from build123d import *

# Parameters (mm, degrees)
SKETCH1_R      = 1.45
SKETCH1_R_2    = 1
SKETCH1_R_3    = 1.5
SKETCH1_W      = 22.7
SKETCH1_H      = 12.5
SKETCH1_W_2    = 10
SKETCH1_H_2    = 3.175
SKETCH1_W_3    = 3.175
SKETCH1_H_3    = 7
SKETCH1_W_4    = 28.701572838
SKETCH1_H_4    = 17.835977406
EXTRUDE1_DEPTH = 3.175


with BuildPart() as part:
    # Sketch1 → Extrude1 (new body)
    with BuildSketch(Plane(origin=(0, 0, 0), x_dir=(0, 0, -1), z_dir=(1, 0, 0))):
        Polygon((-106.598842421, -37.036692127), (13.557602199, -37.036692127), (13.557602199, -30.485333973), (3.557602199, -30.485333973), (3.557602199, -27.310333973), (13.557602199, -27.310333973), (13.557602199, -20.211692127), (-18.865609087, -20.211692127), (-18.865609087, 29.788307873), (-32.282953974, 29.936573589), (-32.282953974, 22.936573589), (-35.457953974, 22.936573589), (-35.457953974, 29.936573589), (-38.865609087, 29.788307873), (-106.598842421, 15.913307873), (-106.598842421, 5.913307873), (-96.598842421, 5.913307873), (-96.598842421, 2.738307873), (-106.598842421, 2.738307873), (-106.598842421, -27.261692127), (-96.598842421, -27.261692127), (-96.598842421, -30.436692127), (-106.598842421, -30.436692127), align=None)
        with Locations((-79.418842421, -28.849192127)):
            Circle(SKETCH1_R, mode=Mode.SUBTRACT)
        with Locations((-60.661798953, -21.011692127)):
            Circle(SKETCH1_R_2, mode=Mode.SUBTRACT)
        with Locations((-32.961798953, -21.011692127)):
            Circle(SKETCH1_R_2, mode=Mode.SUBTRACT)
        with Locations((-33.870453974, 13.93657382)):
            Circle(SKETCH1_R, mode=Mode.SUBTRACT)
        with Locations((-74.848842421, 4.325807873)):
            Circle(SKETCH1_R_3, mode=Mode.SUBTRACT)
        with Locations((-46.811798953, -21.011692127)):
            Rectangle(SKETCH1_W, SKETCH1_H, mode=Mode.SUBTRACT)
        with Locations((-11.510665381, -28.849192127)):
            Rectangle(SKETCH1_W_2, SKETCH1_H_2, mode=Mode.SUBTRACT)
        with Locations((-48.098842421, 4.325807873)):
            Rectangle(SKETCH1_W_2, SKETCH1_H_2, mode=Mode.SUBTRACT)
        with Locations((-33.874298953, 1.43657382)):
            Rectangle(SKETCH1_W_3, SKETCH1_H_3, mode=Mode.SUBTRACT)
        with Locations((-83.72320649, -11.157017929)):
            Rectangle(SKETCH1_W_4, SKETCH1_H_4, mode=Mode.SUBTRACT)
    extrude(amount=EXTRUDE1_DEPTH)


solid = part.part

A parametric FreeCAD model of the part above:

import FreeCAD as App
import Part
import Sketcher
Q = App.Units.Quantity


def add_polygon(sketch, points):
    """Adds a closed chain of lines whose ends are joined by coincident constraints."""
    first, n = sketch.GeometryCount, len(points)
    for a, b in zip(points, points[1:] + points[:1]):
        sketch.addGeometry(Part.LineSegment(App.Vector(*a, 0), App.Vector(*b, 0)), False)
    for i in range(n):
        sketch.addConstraint(Sketcher.Constraint("Coincident", first + i, 2, first + (i + 1) % n, 1))

doc = App.newDocument("Part")
params = doc.addObject("Spreadsheet::Sheet", "Params")
for row, (alias, value) in enumerate([
    ("sketch1_diameter", "2 mm"),
    ("sketch1_diameter2", "3 mm"),
    ("sketch1_diameter3", "2.9 mm"),
    ("sketch1_width", "50 mm"),
    ("sketch1_width2", "7 mm"),
    ("pad1_length", "3.175 mm"),
], start=1):
    params.set(f"A{row}", alias)
    params.set(f"B{row}", "=" + value)
    params.setAlias(f"B{row}", alias)

body = doc.addObject("PartDesign::Body", "Body")

# Sketch on YZ plane
sketch1 = doc.addObject("Sketcher::SketchObject", "Sketch")
body.addObject(sketch1)
sketch1.AttachmentSupport = (doc.YZ_Plane, [""])
sketch1.MapMode = "FlatFace"
add_polygon(sketch1, [(-37, 106.6), (-37, -13.6), (-30.5, -13.6), (-30.5, -3.6), (-27.3, -3.6), (-27.3, -13.6), (-20.2, -13.6), (-20.2, 18.9), (29.8, 18.9), (29.9, 32.3), (22.9, 32.3), (22.9, 35.5), (29.9, 35.5), (29.8, 38.9), (15.9, 106.6), (5.9, 106.6), (5.9, 96.6), (2.7, 96.6), (2.7, 106.6), (-27.3, 106.6), (-27.3, 96.6), (-30.4, 96.6), (-30.4, 106.6)])  # lines 0-22
sketch1.addGeometry(Part.Circle(App.Vector(-28.8, 79.4, 0), App.Vector(0, 0, 1), 1.4), False)  # 23
sketch1.addGeometry(Part.Circle(App.Vector(-21, 60.7, 0), App.Vector(0, 0, 1), 1), False)  # 24
add_polygon(sketch1, [(-20.1, 69.4), (-20.1, 98.1), (-2.2, 98.1), (-2.2, 69.4)])  # lines 25-28
add_polygon(sketch1, [(-27.3, 35.5), (-27.3, 58.2), (-14.8, 58.2), (-14.8, 35.5)])  # lines 29-32
sketch1.addGeometry(Part.Circle(App.Vector(-21, 33, 0), App.Vector(0, 0, 1), 1), False)  # 33
add_polygon(sketch1, [(-30.4, 6.5), (-30.4, 16.5), (-27.3, 16.5), (-27.3, 6.5)])  # lines 34-37
sketch1.addGeometry(Part.Circle(App.Vector(4.3, 74.8, 0), App.Vector(0, 0, 1), 1.5), False)  # 38
add_polygon(sketch1, [(-2.1, 32.3), (-2.1, 35.5), (4.9, 35.5), (4.9, 32.3)])  # lines 39-42
add_polygon(sketch1, [(2.7, 43.1), (2.7, 53.1), (5.9, 53.1), (5.9, 43.1)])  # lines 43-46
sketch1.addGeometry(Part.Circle(App.Vector(13.9, 33.9, 0), App.Vector(0, 0, 1), 1.4), False)  # 47
sketch1.addConstraint(Sketcher.Constraint("Vertical", 0))
sketch1.addConstraint(Sketcher.Constraint("Horizontal", 1))
sketch1.addConstraint(Sketcher.Constraint("Vertical", 2))
sketch1.addConstraint(Sketcher.Constraint("Horizontal", 3))
sketch1.addConstraint(Sketcher.Constraint("Vertical", 4))
sketch1.addConstraint(Sketcher.Constraint("Horizontal", 5))
sketch1.addConstraint(Sketcher.Constraint("Vertical", 6))
sketch1.addConstraint(Sketcher.Constraint("Horizontal", 7))
sketch1.addConstraint(Sketcher.Constraint("Horizontal", 9))
sketch1.addConstraint(Sketcher.Constraint("Vertical", 10))
sketch1.addConstraint(Sketcher.Constraint("Horizontal", 11))
sketch1.addConstraint(Sketcher.Constraint("Horizontal", 14))
sketch1.addConstraint(Sketcher.Constraint("Vertical", 15))
sketch1.addConstraint(Sketcher.Constraint("Horizontal", 16))
sketch1.addConstraint(Sketcher.Constraint("Vertical", 17))
sketch1.addConstraint(Sketcher.Constraint("Horizontal", 18))
sketch1.addConstraint(Sketcher.Constraint("Vertical", 19))
sketch1.addConstraint(Sketcher.Constraint("Horizontal", 20))
sketch1.addConstraint(Sketcher.Constraint("Vertical", 21))
sketch1.addConstraint(Sketcher.Constraint("Horizontal", 22))
sketch1.addConstraint(Sketcher.Constraint("Vertical", 25))
sketch1.addConstraint(Sketcher.Constraint("Horizontal", 26))
sketch1.addConstraint(Sketcher.Constraint("Vertical", 27))
sketch1.addConstraint(Sketcher.Constraint("Horizontal", 28))
sketch1.addConstraint(Sketcher.Constraint("Vertical", 29))
sketch1.addConstraint(Sketcher.Constraint("Horizontal", 30))
sketch1.addConstraint(Sketcher.Constraint("Vertical", 31))
sketch1.addConstraint(Sketcher.Constraint("Horizontal", 32))
sketch1.addConstraint(Sketcher.Constraint("Vertical", 34))
sketch1.addConstraint(Sketcher.Constraint("Horizontal", 35))
sketch1.addConstraint(Sketcher.Constraint("Vertical", 36))
sketch1.addConstraint(Sketcher.Constraint("Horizontal", 37))
sketch1.addConstraint(Sketcher.Constraint("Vertical", 39))
sketch1.addConstraint(Sketcher.Constraint("Horizontal", 40))
sketch1.addConstraint(Sketcher.Constraint("Vertical", 41))
sketch1.addConstraint(Sketcher.Constraint("Horizontal", 42))
sketch1.addConstraint(Sketcher.Constraint("Vertical", 43))
sketch1.addConstraint(Sketcher.Constraint("Horizontal", 44))
sketch1.addConstraint(Sketcher.Constraint("Vertical", 45))
sketch1.addConstraint(Sketcher.Constraint("Horizontal", 46))
sketch1.addConstraint(Sketcher.Constraint("Equal", 24, 33))
sketch1.addConstraint(Sketcher.Constraint("Equal", 23, 47))
sketch1.addConstraint(Sketcher.Constraint("Horizontal", 1, 2, 4, 2))
sketch1.addConstraint(Sketcher.Constraint("Horizontal", 14, 2, 17, 2))
sketch1.addConstraint(Sketcher.Constraint("Horizontal", 16, 2, 19, 2))
sketch1.addConstraint(Sketcher.Constraint("Horizontal", 18, 2, 21, 2))
sketch1.addConstraint(Sketcher.Constraint("Horizontal", 32, 2, 39, 2))
sketch1.addConstraint(Sketcher.Constraint("Vertical", 24, 3, 33, 3))
sketch1.addConstraint(Sketcher.Constraint("Vertical", 8, 2, 11, 2))
sketch1.addConstraint(Sketcher.Constraint("Vertical", 7, 2, 12, 2))
sketch1.addConstraint(Sketcher.Constraint("Vertical", 19, 2, 29, 2))
sketch1.addConstraint(Sketcher.Constraint("Vertical", 21, 2, 34, 2))
sketch1.addConstraint(Sketcher.Constraint("Vertical", 32, 2, 35, 2))
sketch1.addConstraint(Sketcher.Constraint("Vertical", 17, 2, 43, 2))
sketch1.addConstraint(Sketcher.Constraint("Vertical", 15, 2, 44, 2))
sketch1.addConstraint(Sketcher.Constraint("Equal", 3, 16))
sketch1.addConstraint(Sketcher.Constraint("Equal", 16, 20))
sketch1.addConstraint(Sketcher.Constraint("Equal", 11, 40))
sketch1.addConstraint(Sketcher.Constraint("Equal", 14, 2))
sketch1.addConstraint(Sketcher.Constraint("Equal", 46, 10))
sketch1.addConstraint(Sketcher.Constraint("Equal", 4, 15))
sketch1.addConstraint(Sketcher.Constraint("Equal", 21, 34))
sketch1.addConstraint(Sketcher.Constraint("Equal", 10, 39))
sketch1.addConstraint(Sketcher.Constraint("Equal", 36, 43))
sketch1.addConstraint(Sketcher.Constraint("Diameter", 24, Q("2 mm")))
sketch1.addConstraint(Sketcher.Constraint("Diameter", 38, Q("3 mm")))
sketch1.addConstraint(Sketcher.Constraint("Diameter", 23, Q("2.9 mm")))
sketch1.addConstraint(Sketcher.Constraint("DistanceX", 7, 1, 7, 2, Q("50 mm")))
sketch1.addConstraint(Sketcher.Constraint("DistanceX", 9, 2, 9, 1, Q("7 mm")))
sketch1.addConstraint(Sketcher.Constraint("DistanceX", 14, 2, 14, 1, Q("10 mm")))
sketch1.addConstraint(Sketcher.Constraint("DistanceX", 18, 2, 18, 1, Q("30 mm")))
sketch1.addConstraint(Sketcher.Constraint("DistanceX", 22, 2, 22, 1, Q("6.6 mm")))
sketch1.addConstraint(Sketcher.Constraint("DistanceX", 30, 1, 30, 2, Q("12.5 mm")))
sketch1.addConstraint(Sketcher.Constraint("DistanceY", 29, 1, 29, 2, Q("22.7 mm")))
sketch1.addConstraint(Sketcher.Constraint("DistanceX", 47, 3, 8, 2, Q("16 mm")))
sketch1.addConstraint(Sketcher.Constraint("DistanceX", 39, 2, 47, 3, Q("16 mm")))
sketch1.addConstraint(Sketcher.Constraint("DistanceY", 33, 3, 24, 3, Q("27.7 mm")))
sketch1.addConstraint(Sketcher.Constraint("DistanceX", 33, 3, 6, 2, Q("0.8 mm")))
sketch1.addConstraint(Sketcher.Constraint("DistanceY", 29, 2, 24, 3, Q("2.5 mm")))
sketch1.addConstraint(Sketcher.Constraint("DistanceX", 3, 1, 3, 2, Q("3.175 mm")))
sketch1.addConstraint(Sketcher.Constraint("DistanceY", 38, 3, 23, 3, Q("4.57 mm")))
sketch1.addConstraint(Sketcher.Constraint("DistanceY", 38, 3, 13, 2, Q("31.75 mm")))
sketch1.addConstraint(Sketcher.Constraint("DistanceX", 29, 2, 24, 3, Q("6.25 mm")))
sketch1.addConstraint(Sketcher.Constraint("DistanceX", 23, 3, 38, 3, Q("33.175 mm")))
sketch1.addConstraint(Sketcher.Constraint("DistanceX", 1, 1, 1, 2, Q("6.551358 mm")))
sketch1.addConstraint(Sketcher.Constraint("DistanceY", 6, 1, 6, 2, Q("32.423211 mm")))
sketch1.addConstraint(Sketcher.Constraint("DistanceY", -1, 1, 24, 3, Q("60.661799 mm")))
sketch1.addConstraint(Sketcher.Constraint("DistanceX", 23, 3, 24, 3, Q("7.8375 mm")))
sketch1.addConstraint(Sketcher.Constraint("DistanceY", 0, 2, 33, 3, Q("46.519401 mm")))
sketch1.addConstraint(Sketcher.Constraint("DistanceY", 8, 2, 47, 3, Q("1.5875 mm")))
sketch1.addConstraint(Sketcher.Constraint("Distance", 12, Q("3.410879 mm")))
sketch1.addConstraint(Sketcher.Constraint("Distance", 13, Q("69.139761 mm")))
sketch1.addConstraint(Sketcher.Constraint("DistanceX", 26, 1, 26, 2, Q("17.835977 mm")))
sketch1.addConstraint(Sketcher.Constraint("DistanceY", 0, 2, 0, 1, Q("120.156445 mm")))
sketch1.addConstraint(Sketcher.Constraint("DistanceY", 25, 1, 25, 2, Q("28.701573 mm")))
sketch1.addConstraint(Sketcher.Constraint("DistanceX", 26, 2, -1, 1, Q("2.239029 mm")))
sketch1.addConstraint(Sketcher.Constraint("DistanceY", -1, 1, 27, 2, Q("69.37242 mm")))
sketch1.addConstraint(Sketcher.Constraint("DistanceY", 47, 3, 38, 3, Q("40.978388 mm")))
sketch1.addConstraint(Sketcher.Constraint("DistanceX", 23, 3, -1, 1, Q("28.849192 mm")))
sketch1.addConstraint(Sketcher.Constraint("DistanceY", -1, 1, 34, 2, Q("16.510665 mm")))
sketch1.addConstraint(Sketcher.Constraint("DistanceY", -1, 1, 43, 2, Q("53.098842 mm")))
sketch1.setExpression("Constraints[107]", "Params.sketch1_diameter")
sketch1.setExpression("Constraints[108]", "Params.sketch1_diameter2")
sketch1.setExpression("Constraints[109]", "Params.sketch1_diameter3")
sketch1.setExpression("Constraints[110]", "Params.sketch1_width")
sketch1.setExpression("Constraints[111]", "Params.sketch1_width2")
pad1 = doc.addObject("PartDesign::Pad", "Pad")
body.addObject(pad1)
pad1.Profile = sketch1
pad1.setExpression("Length", "Params.pad1_length")

doc.recompute()
